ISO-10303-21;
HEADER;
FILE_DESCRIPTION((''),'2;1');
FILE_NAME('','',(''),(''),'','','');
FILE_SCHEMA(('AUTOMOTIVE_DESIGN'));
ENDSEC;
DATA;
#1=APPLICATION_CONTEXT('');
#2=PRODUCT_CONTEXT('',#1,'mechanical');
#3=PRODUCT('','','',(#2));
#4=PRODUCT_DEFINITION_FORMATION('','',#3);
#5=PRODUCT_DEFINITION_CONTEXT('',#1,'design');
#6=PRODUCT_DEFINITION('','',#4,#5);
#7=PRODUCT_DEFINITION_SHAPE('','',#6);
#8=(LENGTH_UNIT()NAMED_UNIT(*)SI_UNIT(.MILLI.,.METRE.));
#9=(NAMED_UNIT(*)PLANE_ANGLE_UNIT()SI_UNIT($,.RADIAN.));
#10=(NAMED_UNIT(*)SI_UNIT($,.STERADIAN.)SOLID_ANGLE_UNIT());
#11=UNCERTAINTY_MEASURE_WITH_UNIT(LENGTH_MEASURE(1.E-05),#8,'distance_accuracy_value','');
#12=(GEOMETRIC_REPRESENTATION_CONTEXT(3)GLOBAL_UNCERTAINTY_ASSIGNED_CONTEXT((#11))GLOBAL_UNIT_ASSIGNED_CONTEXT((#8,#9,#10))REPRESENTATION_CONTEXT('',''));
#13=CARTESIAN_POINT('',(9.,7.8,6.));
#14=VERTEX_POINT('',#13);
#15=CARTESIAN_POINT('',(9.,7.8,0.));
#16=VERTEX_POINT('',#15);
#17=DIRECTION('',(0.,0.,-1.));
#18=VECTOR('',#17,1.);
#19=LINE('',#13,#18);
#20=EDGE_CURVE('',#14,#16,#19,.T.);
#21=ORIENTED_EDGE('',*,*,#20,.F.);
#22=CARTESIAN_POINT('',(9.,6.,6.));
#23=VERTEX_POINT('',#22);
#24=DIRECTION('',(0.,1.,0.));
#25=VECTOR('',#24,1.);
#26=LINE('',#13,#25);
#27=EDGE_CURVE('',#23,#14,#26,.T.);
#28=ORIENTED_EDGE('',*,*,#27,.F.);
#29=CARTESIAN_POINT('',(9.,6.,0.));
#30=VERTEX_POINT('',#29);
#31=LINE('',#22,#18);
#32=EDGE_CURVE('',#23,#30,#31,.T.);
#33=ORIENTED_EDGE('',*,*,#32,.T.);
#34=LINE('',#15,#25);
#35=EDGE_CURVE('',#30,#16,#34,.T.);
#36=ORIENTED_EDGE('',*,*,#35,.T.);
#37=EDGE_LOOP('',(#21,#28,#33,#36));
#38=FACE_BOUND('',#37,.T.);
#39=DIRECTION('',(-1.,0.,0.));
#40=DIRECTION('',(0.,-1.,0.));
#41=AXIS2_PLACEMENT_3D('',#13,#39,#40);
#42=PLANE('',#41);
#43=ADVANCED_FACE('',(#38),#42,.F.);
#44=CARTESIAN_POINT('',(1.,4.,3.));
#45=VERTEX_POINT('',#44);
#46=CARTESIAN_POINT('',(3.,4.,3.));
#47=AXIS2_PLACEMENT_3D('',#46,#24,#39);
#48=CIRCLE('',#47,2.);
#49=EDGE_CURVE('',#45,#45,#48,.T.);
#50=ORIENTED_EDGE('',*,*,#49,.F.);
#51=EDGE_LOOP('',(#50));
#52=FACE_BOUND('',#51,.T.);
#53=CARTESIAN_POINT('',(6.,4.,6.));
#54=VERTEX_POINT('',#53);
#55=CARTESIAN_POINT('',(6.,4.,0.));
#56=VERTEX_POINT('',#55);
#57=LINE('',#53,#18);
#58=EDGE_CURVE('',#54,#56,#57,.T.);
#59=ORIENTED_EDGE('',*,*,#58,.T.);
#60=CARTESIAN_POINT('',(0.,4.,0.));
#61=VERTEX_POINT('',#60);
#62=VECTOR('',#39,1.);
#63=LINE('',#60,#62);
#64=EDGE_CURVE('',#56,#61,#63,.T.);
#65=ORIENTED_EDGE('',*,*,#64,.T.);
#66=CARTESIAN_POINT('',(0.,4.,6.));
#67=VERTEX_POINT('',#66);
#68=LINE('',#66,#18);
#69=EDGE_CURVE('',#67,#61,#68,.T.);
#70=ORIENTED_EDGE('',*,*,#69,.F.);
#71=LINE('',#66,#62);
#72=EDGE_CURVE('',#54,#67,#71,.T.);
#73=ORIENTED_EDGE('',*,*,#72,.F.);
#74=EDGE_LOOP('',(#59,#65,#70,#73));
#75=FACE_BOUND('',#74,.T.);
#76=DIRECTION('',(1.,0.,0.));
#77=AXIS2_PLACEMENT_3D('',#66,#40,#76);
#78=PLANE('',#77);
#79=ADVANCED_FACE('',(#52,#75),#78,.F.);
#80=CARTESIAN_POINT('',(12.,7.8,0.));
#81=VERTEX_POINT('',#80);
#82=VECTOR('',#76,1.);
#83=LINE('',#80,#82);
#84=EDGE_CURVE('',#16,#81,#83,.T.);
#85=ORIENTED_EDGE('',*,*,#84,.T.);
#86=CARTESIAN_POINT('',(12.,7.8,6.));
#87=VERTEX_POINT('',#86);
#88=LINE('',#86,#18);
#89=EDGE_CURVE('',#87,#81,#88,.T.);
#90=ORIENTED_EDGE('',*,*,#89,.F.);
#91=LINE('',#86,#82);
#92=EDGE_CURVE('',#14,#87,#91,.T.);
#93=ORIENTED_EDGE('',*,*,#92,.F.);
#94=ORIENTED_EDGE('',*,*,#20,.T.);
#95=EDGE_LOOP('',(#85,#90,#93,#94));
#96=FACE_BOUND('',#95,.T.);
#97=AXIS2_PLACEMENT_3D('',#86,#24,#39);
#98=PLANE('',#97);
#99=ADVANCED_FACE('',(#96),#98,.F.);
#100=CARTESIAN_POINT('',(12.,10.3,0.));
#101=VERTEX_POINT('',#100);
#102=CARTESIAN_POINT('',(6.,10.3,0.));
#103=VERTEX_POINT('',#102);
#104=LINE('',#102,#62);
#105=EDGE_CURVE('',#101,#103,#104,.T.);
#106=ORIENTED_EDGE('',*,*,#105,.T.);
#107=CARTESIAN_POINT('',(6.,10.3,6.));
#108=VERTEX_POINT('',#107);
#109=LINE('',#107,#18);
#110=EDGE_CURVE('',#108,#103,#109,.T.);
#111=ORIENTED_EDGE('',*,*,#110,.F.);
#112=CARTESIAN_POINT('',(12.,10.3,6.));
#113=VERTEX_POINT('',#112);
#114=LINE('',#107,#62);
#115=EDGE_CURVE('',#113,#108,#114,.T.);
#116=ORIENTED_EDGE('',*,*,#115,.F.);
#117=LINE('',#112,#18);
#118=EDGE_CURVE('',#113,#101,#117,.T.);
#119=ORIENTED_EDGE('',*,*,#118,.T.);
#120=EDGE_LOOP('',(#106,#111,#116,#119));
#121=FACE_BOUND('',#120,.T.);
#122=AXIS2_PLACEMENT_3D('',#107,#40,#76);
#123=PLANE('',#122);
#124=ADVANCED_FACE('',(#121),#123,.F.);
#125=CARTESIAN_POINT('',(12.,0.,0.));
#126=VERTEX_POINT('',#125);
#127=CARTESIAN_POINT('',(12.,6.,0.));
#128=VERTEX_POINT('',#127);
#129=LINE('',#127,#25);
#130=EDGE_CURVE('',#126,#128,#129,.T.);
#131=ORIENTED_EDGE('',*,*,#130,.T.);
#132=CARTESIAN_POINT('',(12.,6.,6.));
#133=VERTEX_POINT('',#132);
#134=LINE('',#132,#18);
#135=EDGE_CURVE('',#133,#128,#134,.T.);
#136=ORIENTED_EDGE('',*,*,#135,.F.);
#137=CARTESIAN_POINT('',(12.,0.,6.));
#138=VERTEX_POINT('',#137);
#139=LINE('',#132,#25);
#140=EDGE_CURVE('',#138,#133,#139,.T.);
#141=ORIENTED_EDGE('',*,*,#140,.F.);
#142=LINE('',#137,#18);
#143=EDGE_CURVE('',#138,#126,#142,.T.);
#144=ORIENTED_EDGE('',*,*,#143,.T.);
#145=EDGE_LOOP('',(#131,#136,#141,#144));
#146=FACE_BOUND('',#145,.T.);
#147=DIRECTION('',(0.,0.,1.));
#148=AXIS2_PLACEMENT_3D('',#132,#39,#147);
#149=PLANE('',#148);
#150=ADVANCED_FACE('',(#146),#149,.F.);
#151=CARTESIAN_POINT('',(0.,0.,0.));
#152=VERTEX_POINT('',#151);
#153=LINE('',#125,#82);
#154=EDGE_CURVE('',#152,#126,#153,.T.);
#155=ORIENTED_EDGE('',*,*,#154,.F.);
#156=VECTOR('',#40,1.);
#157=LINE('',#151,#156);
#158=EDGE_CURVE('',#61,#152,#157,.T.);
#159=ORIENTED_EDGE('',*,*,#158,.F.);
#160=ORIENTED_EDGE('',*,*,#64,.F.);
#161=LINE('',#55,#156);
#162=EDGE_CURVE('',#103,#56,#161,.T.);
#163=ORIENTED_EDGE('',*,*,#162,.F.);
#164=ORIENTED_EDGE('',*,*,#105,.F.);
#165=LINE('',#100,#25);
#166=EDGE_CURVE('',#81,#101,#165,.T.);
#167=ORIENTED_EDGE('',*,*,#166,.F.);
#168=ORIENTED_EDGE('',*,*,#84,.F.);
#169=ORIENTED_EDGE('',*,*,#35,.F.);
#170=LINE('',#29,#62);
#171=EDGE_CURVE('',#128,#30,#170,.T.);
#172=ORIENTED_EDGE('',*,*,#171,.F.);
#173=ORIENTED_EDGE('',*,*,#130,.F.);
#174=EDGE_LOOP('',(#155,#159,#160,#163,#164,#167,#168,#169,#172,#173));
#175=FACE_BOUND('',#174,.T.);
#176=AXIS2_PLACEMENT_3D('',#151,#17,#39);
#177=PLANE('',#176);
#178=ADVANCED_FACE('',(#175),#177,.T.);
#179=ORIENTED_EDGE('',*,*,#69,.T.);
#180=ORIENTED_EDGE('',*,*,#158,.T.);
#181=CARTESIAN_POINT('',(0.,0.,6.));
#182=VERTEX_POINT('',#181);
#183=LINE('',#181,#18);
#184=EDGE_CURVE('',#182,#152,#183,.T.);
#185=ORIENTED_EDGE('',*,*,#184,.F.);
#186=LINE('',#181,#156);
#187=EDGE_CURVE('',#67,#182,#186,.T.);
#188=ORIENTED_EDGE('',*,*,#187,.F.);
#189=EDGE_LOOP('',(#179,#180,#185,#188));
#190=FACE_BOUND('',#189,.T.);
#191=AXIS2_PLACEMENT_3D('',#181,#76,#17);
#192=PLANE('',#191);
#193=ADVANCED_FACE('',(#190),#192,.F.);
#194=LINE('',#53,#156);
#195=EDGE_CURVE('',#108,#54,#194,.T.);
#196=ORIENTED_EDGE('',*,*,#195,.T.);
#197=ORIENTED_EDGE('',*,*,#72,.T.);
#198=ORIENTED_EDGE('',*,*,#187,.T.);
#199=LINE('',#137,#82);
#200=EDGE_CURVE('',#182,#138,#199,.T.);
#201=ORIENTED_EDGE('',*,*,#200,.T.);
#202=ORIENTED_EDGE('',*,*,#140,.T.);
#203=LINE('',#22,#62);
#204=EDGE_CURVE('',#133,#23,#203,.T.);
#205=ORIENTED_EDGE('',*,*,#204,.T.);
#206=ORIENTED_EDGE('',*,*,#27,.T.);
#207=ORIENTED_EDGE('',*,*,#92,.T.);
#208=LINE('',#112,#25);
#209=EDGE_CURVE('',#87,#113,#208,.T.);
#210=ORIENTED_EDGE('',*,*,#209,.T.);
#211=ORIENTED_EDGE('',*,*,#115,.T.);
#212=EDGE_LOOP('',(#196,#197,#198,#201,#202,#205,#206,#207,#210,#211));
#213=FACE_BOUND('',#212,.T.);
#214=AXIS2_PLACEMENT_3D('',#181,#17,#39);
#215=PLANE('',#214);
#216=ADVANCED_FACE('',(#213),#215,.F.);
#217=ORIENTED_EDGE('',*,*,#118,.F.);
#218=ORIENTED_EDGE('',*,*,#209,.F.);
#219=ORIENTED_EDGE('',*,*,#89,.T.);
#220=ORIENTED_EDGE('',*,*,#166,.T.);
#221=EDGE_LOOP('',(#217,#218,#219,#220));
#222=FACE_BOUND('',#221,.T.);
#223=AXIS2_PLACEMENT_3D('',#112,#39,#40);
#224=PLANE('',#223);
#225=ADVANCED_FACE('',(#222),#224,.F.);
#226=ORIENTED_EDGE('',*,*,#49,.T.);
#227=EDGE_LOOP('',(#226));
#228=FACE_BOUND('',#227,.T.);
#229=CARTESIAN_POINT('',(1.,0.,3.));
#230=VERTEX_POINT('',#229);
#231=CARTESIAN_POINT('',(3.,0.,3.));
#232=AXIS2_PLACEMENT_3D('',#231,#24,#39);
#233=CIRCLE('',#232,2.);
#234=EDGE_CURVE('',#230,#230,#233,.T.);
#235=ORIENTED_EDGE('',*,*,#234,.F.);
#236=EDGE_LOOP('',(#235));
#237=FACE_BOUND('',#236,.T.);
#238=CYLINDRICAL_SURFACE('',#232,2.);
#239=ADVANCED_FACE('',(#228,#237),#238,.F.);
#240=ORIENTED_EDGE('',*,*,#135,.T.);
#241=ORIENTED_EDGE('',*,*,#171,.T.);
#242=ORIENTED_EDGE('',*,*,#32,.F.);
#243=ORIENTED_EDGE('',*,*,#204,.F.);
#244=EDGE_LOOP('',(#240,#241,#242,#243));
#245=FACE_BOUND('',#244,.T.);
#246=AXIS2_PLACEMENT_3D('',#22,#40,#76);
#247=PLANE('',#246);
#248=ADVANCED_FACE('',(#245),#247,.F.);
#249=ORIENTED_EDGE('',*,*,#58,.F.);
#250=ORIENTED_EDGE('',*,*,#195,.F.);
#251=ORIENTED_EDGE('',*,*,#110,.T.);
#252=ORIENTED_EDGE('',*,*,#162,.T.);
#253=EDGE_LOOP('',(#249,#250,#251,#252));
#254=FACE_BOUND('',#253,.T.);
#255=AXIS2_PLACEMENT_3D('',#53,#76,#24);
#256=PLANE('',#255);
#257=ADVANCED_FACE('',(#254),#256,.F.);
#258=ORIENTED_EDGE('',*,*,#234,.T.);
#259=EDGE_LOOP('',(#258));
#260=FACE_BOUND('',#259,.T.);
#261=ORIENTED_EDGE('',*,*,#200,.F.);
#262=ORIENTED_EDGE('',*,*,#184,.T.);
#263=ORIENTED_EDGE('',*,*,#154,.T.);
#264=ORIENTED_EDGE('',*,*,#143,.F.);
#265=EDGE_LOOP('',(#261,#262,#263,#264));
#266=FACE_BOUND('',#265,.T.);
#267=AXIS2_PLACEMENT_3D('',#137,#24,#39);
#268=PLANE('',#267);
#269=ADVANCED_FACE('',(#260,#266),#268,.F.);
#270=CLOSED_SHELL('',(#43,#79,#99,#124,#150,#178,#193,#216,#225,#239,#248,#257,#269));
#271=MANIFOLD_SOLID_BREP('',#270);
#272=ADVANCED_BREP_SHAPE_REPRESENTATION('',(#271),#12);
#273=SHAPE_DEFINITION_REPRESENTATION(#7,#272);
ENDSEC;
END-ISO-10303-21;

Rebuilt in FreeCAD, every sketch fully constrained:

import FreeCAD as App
import Part
import Sketcher
from FreeCAD import Vector

doc = App.newDocument("Part")
body = doc.addObject("PartDesign::Body", "Body")

# Sketch on XY plane
sketch1 = doc.addObject("Sketcher::SketchObject", "Sketch")
body.addObject(sketch1)
sketch1.AttachmentSupport = (doc.XY_Plane, [""])
sketch1.MapMode = "FlatFace"
sketch1.addGeometry(Part.LineSegment(Vector(0, 4, 0), Vector(0, 0, 0)), False)
sketch1.addGeometry(Part.LineSegment(Vector(0, 0, 0), Vector(12, 0, 0)), False)
sketch1.addGeometry(Part.LineSegment(Vector(12, 0, 0), Vector(12, 6, 0)), False)
sketch1.addGeometry(Part.LineSegment(Vector(12, 6, 0), Vector(9, 6, 0)), False)
sketch1.addGeometry(Part.LineSegment(Vector(9, 6, 0), Vector(9, 7.8, 0)), False)
sketch1.addGeometry(Part.LineSegment(Vector(9, 7.8, 0), Vector(12, 7.8, 0)), False)
sketch1.addGeometry(Part.LineSegment(Vector(12, 7.8, 0), Vector(12, 10.3, 0)), False)
sketch1.addGeometry(Part.LineSegment(Vector(12, 10.3, 0), Vector(6, 10.3, 0)), False)
sketch1.addGeometry(Part.LineSegment(Vector(6, 10.3, 0), Vector(6, 4, 0)), False)
sketch1.addGeometry(Part.LineSegment(Vector(6, 4, 0), Vector(0, 4, 0)), False)
sketch1.addConstraint(Sketcher.Constraint("Coincident", 0, 2, 1, 1))
sketch1.addConstraint(Sketcher.Constraint("Coincident", 1, 2, 2, 1))
sketch1.addConstraint(Sketcher.Constraint("Coincident", 2, 2, 3, 1))
sketch1.addConstraint(Sketcher.Constraint("Coincident", 3, 2, 4, 1))
sketch1.addConstraint(Sketcher.Constraint("Coincident", 4, 2, 5, 1))
sketch1.addConstraint(Sketcher.Constraint("Coincident", 5, 2, 6, 1))
sketch1.addConstraint(Sketcher.Constraint("Coincident", 6, 2, 7, 1))
sketch1.addConstraint(Sketcher.Constraint("Coincident", 7, 2, 8, 1))
sketch1.addConstraint(Sketcher.Constraint("Coincident", 8, 2, 9, 1))
sketch1.addConstraint(Sketcher.Constraint("Coincident", 9, 2, 0, 1))
sketch1.addConstraint(Sketcher.Constraint("Vertical", 0))
sketch1.addConstraint(Sketcher.Constraint("Horizontal", 1))
sketch1.addConstraint(Sketcher.Constraint("Vertical", 2))
sketch1.addConstraint(Sketcher.Constraint("Horizontal", 3))
sketch1.addConstraint(Sketcher.Constraint("Vertical", 4))
sketch1.addConstraint(Sketcher.Constraint("Horizontal", 5))
sketch1.addConstraint(Sketcher.Constraint("Vertical", 6))
sketch1.addConstraint(Sketcher.Constraint("Horizontal", 7))
sketch1.addConstraint(Sketcher.Constraint("Vertical", 8))
sketch1.addConstraint(Sketcher.Constraint("Horizontal", 9))
sketch1.addConstraint(Sketcher.Constraint("Coincident", 0, 2, -1, 1))
sketch1.addConstraint(Sketcher.Constraint("Vertical", 2, 2, 5, 2))
sketch1.addConstraint(Sketcher.Constraint("Equal", 7, 9))
sketch1.addConstraint(Sketcher.Constraint("Equal", 9, 2))
sketch1.addConstraint(Sketcher.Constraint("DistanceX", 1, 1, 1, 2, 12.0))
sketch1.addConstraint(Sketcher.Constraint("DistanceX", 3, 2, 3, 1, 3.0))
sketch1.addConstraint(Sketcher.Constraint("DistanceY", 0, 2, 0, 1, 4.0))
sketch1.addConstraint(Sketcher.Constraint("DistanceY", 4, 1, 4, 2, 1.8))
sketch1.addConstraint(Sketcher.Constraint("DistanceY", 6, 1, 6, 2, 2.5))
pad1 = doc.addObject("PartDesign::Pad", "Pad")
body.addObject(pad1)
pad1.Profile = sketch1
pad1.Length = 6

# Sketch on XZ plane
sketch2 = doc.addObject("Sketcher::SketchObject", "Sketch001")
body.addObject(sketch2)
sketch2.AttachmentSupport = (doc.XZ_Plane, [""])
sketch2.MapMode = "FlatFace"
sketch2.AttachmentOffset = App.Placement(Vector(0, 0, -4), App.Rotation())
sketch2.addGeometry(Part.Circle(Vector(3, 3, 0), Vector(0, 0, 1), 2), False)
sketch2.addConstraint(Sketcher.Constraint("Diameter", 0, 4.0))
sketch2.addConstraint(Sketcher.Constraint("DistanceX", -1, 1, 0, 3, 3.0))
sketch2.addConstraint(Sketcher.Constraint("DistanceY", -1, 1, 0, 3, 3.0))
pocket1 = doc.addObject("PartDesign::Pocket", "Pocket")
body.addObject(pocket1)
pocket1.Profile = sketch2
pocket1.Type = "ThroughAll"
pocket1.Reversed = True

doc.recompute()
